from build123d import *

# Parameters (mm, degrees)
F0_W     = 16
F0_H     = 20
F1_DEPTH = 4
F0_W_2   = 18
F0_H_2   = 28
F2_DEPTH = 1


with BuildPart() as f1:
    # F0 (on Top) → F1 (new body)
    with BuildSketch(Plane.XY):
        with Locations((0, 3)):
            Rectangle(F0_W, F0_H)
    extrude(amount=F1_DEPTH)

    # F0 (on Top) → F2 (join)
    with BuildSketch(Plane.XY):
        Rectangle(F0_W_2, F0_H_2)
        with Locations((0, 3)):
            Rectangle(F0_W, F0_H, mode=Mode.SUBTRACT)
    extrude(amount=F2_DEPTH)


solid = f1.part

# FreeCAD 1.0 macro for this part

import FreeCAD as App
import Part
import Sketcher
from FreeCAD import Vector
Q = App.Units.Quantity


def add_polygon(sketch, points):
    """Adds a closed chain of lines whose ends are joined by coincident constraints."""
    first, n = sketch.GeometryCount, len(points)
    for a, b in zip(points, points[1:] + points[:1]):
        sketch.addGeometry(Part.LineSegment(App.Vector(*a, 0), App.Vector(*b, 0)), False)
    for i in range(n):
        sketch.addConstraint(Sketcher.Constraint("Coincident", first + i, 2, first + (i + 1) % n, 1))

doc = App.newDocument("Part")
body = doc.addObject("PartDesign::Body", "Body")

sketch1 = body.newObject("Sketcher::SketchObject", "Sketch")
sketch1.AttachmentSupport = (doc.getObject("XY_Plane"), [""])
sketch1.MapMode = "FlatFace"
add_polygon(sketch1, [(-8, 13), (-8, -7), (8, -7), (8, 13)])
sketch1.addConstraint(Sketcher.Constraint("Vertical", 0))
sketch1.addConstraint(Sketcher.Constraint("Horizontal", 1))
sketch1.addConstraint(Sketcher.Constraint("Vertical", 2))
sketch1.addConstraint(Sketcher.Constraint("Horizontal", 3))
sketch1.addConstraint(Sketcher.Constraint("DistanceX", 1, 1, 1, 2, Q("16 mm")))
sketch1.addConstraint(Sketcher.Constraint("DistanceY", 0, 2, 0, 1, Q("20 mm")))
sketch1.addConstraint(Sketcher.Constraint("DistanceX", 0, 2, -1, 1, Q("8 mm")))
sketch1.addConstraint(Sketcher.Constraint("DistanceY", 0, 2, -1, 1, Q("7 mm")))
pad1 = body.newObject("PartDesign::Pad", "Pad")
pad1.Profile = sketch1
pad1.Length = 4

sketch2 = body.newObject("Sketcher::SketchObject", "Sketch001")
sketch2.AttachmentSupport = (doc.getObject("XY_Plane"), [""])
sketch2.MapMode = "FlatFace"
add_polygon(sketch2, [(-9, 14), (-9, -14), (9, -14), (9, 14)])
add_polygon(sketch2, [(8, -7), (-8, -7), (-8, 13), (8, 13)])
sketch2.addConstraint(Sketcher.Constraint("Vertical", 0))
sketch2.addConstraint(Sketcher.Constraint("Horizontal", 1))
sketch2.addConstraint(Sketcher.Constraint("Vertical", 2))
sketch2.addConstraint(Sketcher.Constraint("Horizontal", 3))
sketch2.addConstraint(Sketcher.Constraint("Horizontal", 4))
sketch2.addConstraint(Sketcher.Constraint("Vertical", 5))
sketch2.addConstraint(Sketcher.Constraint("Horizontal", 6))
sketch2.addConstraint(Sketcher.Constraint("Vertical", 7))
sketch2.addConstraint(Sketcher.Constraint("Symmetric", 0, 2, 2, 2, -1, 1))
sketch2.addConstraint(Sketcher.Constraint("DistanceX", 1, 1, 1, 2, Q("18 mm")))
sketch2.addConstraint(Sketcher.Constraint("DistanceX", 4, 2, 4, 1, Q("16 mm")))
sketch2.addConstraint(Sketcher.Constraint("DistanceY", 0, 2, 0, 1, Q("28 mm")))
sketch2.addConstraint(Sketcher.Constraint("DistanceY", 5, 1, 5, 2, Q("20 mm")))
sketch2.addConstraint(Sketcher.Constraint("DistanceX", 4, 2, -1, 1, Q("8 mm")))
sketch2.addConstraint(Sketcher.Constraint("DistanceY", 4, 2, -1, 1, Q("7 mm")))
pad2 = body.newObject("PartDesign::Pad", "Pad001")
pad2.Profile = sketch2
pad2.Length = 1

doc.recompute()
